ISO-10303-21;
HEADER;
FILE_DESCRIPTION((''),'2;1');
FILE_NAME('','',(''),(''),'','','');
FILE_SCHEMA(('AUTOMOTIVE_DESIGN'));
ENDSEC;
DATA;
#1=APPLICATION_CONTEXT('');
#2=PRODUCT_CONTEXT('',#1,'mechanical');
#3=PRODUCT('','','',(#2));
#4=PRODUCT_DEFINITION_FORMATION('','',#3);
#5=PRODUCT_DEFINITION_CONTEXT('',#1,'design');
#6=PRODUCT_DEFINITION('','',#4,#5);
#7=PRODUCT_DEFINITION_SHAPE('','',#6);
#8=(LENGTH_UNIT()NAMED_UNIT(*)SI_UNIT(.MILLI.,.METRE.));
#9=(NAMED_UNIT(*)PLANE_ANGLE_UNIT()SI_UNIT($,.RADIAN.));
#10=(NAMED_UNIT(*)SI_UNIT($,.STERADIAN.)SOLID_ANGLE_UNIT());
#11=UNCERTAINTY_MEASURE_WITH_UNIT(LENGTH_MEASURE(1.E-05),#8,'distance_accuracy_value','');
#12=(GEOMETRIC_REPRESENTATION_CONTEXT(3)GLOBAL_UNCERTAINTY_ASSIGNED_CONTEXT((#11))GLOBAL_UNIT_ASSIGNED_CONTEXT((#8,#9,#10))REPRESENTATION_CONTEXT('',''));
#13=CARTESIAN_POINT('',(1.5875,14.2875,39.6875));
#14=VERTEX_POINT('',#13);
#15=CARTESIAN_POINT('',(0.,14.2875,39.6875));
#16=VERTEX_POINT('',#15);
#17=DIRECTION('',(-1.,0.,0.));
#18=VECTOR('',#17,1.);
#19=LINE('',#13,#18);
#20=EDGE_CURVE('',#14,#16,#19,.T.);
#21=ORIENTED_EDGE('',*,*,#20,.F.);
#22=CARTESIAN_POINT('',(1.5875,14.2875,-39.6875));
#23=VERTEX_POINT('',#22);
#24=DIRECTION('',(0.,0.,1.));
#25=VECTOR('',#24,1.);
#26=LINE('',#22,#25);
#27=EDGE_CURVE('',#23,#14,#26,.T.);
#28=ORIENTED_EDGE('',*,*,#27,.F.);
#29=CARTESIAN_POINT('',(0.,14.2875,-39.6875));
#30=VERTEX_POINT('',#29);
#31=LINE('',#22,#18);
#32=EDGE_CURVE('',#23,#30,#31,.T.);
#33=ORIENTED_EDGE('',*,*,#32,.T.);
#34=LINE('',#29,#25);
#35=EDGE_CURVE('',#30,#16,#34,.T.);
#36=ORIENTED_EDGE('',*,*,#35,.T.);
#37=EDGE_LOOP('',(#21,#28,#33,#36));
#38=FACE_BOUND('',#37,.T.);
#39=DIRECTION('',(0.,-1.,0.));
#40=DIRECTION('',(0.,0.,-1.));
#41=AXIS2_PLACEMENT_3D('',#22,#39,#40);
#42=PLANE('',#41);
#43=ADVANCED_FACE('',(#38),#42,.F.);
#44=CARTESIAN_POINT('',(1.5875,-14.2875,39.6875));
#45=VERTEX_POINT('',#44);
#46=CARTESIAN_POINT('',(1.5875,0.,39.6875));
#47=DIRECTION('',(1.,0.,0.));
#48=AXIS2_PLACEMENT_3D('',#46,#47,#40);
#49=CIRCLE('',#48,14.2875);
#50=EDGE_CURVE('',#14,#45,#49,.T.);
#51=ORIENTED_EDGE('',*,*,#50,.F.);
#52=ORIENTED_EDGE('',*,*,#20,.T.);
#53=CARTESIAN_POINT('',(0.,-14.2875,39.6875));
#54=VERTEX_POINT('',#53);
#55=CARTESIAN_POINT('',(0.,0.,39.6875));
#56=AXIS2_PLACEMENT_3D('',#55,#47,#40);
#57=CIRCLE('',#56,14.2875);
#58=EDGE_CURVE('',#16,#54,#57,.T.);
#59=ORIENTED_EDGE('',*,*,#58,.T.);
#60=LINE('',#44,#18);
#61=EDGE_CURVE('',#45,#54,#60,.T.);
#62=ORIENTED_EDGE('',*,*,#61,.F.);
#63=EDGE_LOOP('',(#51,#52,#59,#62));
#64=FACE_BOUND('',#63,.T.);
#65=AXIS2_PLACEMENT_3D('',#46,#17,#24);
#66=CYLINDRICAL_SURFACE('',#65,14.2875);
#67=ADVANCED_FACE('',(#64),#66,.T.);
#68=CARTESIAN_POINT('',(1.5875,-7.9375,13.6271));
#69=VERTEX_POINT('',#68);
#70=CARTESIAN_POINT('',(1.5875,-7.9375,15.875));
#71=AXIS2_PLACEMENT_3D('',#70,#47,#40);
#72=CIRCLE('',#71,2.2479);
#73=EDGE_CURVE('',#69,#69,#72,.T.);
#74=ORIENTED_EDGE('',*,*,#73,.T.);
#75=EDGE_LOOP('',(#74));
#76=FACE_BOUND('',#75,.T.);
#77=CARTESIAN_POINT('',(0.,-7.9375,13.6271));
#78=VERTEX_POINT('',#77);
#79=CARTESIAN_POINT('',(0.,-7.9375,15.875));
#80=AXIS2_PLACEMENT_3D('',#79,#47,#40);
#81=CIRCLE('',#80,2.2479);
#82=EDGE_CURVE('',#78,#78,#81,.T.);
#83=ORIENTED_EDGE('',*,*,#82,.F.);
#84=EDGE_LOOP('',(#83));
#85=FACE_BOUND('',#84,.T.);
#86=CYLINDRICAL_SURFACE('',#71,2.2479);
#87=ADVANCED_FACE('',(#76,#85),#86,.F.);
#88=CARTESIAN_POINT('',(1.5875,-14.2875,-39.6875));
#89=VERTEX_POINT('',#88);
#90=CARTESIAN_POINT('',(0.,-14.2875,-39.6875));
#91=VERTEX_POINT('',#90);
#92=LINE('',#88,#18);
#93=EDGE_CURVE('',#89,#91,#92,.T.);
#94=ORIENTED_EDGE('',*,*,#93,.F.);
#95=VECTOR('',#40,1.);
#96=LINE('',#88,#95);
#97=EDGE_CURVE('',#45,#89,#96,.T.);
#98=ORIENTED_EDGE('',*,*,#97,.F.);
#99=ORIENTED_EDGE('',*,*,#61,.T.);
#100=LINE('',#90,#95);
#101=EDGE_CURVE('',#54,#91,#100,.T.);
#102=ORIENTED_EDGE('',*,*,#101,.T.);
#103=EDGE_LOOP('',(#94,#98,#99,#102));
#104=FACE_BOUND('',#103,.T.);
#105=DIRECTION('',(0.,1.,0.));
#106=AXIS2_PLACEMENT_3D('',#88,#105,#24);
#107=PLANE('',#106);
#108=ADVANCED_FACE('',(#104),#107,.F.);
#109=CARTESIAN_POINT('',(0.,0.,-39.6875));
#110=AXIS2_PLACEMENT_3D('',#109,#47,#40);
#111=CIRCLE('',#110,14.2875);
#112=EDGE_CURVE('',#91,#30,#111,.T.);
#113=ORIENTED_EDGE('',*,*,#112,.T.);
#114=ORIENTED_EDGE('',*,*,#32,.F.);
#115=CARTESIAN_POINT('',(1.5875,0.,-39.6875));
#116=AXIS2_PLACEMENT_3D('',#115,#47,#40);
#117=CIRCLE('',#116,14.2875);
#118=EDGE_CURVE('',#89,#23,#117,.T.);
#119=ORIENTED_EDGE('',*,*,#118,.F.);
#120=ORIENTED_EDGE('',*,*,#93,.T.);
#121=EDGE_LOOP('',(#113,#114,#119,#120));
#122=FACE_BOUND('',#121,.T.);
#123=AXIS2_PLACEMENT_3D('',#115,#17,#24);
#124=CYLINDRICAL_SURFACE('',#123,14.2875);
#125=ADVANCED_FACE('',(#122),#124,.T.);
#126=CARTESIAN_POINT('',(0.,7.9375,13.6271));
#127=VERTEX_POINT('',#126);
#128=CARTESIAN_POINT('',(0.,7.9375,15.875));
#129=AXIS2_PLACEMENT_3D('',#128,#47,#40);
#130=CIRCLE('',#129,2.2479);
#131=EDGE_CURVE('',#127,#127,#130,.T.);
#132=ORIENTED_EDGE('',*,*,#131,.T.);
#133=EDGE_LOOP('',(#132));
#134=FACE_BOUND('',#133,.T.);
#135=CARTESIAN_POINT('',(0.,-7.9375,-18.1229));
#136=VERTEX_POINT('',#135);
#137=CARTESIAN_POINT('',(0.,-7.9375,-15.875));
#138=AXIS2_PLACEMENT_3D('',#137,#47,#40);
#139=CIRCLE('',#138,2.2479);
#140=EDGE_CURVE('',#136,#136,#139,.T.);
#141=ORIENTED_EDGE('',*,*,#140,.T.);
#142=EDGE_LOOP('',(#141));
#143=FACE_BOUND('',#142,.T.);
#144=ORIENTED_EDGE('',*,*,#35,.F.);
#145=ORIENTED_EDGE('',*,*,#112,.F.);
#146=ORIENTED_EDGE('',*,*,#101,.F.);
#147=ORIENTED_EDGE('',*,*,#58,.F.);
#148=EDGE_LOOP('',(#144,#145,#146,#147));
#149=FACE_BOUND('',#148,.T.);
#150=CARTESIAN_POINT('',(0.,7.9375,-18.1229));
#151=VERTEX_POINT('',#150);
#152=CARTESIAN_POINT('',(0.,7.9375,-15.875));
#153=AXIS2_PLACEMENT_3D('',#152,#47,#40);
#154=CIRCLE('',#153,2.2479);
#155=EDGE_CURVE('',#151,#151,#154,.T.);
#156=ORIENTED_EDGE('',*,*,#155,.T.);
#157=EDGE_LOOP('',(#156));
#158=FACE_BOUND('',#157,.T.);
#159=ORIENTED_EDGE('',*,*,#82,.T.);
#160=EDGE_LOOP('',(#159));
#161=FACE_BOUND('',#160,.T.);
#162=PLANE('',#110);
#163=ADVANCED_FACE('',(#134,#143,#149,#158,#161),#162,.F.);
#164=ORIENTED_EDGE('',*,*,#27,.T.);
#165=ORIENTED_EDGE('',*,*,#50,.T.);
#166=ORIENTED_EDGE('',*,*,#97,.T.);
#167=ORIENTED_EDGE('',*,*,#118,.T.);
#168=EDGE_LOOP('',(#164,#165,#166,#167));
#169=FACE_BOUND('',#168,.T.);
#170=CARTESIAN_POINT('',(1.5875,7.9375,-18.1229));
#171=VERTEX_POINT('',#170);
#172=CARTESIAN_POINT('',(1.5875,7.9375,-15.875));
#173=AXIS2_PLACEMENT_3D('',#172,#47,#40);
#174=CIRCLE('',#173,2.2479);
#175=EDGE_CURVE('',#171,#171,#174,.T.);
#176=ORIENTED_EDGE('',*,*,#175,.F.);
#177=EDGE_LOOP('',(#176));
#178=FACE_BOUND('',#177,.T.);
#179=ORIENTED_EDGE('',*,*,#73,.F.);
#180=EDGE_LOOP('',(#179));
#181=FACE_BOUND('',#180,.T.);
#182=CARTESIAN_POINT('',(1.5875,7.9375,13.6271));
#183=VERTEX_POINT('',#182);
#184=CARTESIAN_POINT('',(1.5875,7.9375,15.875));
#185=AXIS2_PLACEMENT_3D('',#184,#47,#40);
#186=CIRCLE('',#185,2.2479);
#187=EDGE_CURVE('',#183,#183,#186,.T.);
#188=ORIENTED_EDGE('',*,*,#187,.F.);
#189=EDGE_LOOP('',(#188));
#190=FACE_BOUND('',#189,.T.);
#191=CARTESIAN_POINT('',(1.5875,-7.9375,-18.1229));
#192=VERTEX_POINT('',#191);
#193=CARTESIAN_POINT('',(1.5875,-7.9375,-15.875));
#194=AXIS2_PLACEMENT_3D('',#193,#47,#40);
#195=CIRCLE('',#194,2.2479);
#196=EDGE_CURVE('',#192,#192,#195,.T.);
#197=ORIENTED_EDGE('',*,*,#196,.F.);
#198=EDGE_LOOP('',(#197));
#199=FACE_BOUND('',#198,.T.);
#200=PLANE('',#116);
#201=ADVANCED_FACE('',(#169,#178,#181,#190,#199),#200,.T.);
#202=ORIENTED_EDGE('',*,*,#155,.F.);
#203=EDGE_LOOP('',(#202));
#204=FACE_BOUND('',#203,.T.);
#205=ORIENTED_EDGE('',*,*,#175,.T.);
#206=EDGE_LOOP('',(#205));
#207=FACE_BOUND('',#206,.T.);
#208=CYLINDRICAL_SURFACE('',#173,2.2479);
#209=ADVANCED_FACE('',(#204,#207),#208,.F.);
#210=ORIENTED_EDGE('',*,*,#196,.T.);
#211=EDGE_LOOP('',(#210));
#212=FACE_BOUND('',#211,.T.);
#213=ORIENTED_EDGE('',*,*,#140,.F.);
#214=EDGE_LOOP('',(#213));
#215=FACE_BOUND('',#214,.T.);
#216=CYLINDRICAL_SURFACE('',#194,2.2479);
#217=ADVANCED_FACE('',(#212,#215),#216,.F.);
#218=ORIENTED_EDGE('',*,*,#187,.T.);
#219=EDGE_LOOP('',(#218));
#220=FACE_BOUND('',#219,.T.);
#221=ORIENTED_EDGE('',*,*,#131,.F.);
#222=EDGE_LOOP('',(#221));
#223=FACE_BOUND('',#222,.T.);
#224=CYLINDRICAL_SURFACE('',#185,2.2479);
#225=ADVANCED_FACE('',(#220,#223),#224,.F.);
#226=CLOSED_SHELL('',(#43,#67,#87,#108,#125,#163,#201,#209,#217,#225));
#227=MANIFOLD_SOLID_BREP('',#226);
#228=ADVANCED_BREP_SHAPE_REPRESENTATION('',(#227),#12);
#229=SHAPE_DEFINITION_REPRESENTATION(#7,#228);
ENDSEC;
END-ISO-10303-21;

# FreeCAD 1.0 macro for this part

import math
import FreeCAD as App
import Part
import Sketcher

V = App.Vector
Q = App.Units.Quantity

doc = App.newDocument("Part")
body = doc.addObject("PartDesign::Body", "Body")

# Sketch on YZ plane
sketch1 = body.newObject("Sketcher::SketchObject", "Sketch")
sketch1.AttachmentSupport = (doc.getObject("YZ_Plane"), [""])
sketch1.MapMode = "FlatFace"
sketch1.addGeometry([
    Part.LineSegment(V(-14, 40, 0), V(-14, -40, 0)),
    Part.ArcOfCircle(Part.Circle(V(0, -40, 0), V(0, 0, 1), 14), math.radians(180), math.radians(360)),
    Part.LineSegment(V(14, -40, 0), V(14, 40, 0)),
    Part.ArcOfCircle(Part.Circle(V(0, 40, 0), V(0, 0, 1), 14), math.radians(0), math.radians(180)),
], False)
sketch1.addConstraint([
    Sketcher.Constraint("Tangent", 0, 2, 1, 1),
    Sketcher.Constraint("Tangent", 1, 2, 2, 1),
    Sketcher.Constraint("Tangent", 2, 2, 3, 1),
    Sketcher.Constraint("Tangent", 3, 2, 0, 1),
    Sketcher.Constraint("Vertical", 0),
    Sketcher.Constraint("Vertical", 2),
    Sketcher.Constraint("Symmetric", 1, 3, 3, 3, -1, 1),
    Sketcher.Constraint("Radius", 1, Q("0.5625 in")),
    Sketcher.Constraint("DistanceY", 0, 2, 0, 1, Q("3.125 in")),
])
pad1 = body.newObject("PartDesign::Pad", "Pad")
pad1.Profile = sketch1
pad1.Length = Q("0.0625 in")

# Sketch on YZ plane
sketch2 = body.newObject("Sketcher::SketchObject", "Sketch001")
sketch2.AttachmentSupport = (doc.getObject("YZ_Plane"), [""])
sketch2.MapMode = "FlatFace"
sketch2.AttachmentOffset = App.Placement(V(0, 0, 0.0625 * 25.4), App.Rotation())
sketch2.addGeometry([
    Part.Circle(V(7.9, 15.9, 0), V(0, 0, 1), 2.2),
    Part.Circle(V(-7.9, 15.9, 0), V(0, 0, 1), 2.2),
    Part.Circle(V(-7.9, -15.9, 0), V(0, 0, 1), 2.2),
    Part.Circle(V(7.9, -15.9, 0), V(0, 0, 1), 2.2),
], False)
sketch2.addConstraint([
    Sketcher.Constraint("Equal", 0, 1),
    Sketcher.Constraint("Equal", 1, 2),
    Sketcher.Constraint("Equal", 2, 3),
    Sketcher.Constraint("Symmetric", 0, 3, 2, 3, -1, 1),
    Sketcher.Constraint("Symmetric", 1, 3, 3, 3, -1, 1),
    Sketcher.Constraint("Symmetric", 0, 3, 1, 3, -2),
    Sketcher.Constraint("Diameter", 0, Q("0.177 in")),
    Sketcher.Constraint("DistanceY", 2, 3, 1, 3, Q("1.25 in")),
    Sketcher.Constraint("DistanceX", -1, 1, 0, 3, Q("0.3125 in")),
])
doc.recompute()
hole = body.newObject("PartDesign::Hole", "Hole")
hole.Profile = sketch2
hole.ThreadType = "None"
hole.Diameter = Q("0.177 in")
hole.DepthType = "ThroughAll"

doc.recompute()
